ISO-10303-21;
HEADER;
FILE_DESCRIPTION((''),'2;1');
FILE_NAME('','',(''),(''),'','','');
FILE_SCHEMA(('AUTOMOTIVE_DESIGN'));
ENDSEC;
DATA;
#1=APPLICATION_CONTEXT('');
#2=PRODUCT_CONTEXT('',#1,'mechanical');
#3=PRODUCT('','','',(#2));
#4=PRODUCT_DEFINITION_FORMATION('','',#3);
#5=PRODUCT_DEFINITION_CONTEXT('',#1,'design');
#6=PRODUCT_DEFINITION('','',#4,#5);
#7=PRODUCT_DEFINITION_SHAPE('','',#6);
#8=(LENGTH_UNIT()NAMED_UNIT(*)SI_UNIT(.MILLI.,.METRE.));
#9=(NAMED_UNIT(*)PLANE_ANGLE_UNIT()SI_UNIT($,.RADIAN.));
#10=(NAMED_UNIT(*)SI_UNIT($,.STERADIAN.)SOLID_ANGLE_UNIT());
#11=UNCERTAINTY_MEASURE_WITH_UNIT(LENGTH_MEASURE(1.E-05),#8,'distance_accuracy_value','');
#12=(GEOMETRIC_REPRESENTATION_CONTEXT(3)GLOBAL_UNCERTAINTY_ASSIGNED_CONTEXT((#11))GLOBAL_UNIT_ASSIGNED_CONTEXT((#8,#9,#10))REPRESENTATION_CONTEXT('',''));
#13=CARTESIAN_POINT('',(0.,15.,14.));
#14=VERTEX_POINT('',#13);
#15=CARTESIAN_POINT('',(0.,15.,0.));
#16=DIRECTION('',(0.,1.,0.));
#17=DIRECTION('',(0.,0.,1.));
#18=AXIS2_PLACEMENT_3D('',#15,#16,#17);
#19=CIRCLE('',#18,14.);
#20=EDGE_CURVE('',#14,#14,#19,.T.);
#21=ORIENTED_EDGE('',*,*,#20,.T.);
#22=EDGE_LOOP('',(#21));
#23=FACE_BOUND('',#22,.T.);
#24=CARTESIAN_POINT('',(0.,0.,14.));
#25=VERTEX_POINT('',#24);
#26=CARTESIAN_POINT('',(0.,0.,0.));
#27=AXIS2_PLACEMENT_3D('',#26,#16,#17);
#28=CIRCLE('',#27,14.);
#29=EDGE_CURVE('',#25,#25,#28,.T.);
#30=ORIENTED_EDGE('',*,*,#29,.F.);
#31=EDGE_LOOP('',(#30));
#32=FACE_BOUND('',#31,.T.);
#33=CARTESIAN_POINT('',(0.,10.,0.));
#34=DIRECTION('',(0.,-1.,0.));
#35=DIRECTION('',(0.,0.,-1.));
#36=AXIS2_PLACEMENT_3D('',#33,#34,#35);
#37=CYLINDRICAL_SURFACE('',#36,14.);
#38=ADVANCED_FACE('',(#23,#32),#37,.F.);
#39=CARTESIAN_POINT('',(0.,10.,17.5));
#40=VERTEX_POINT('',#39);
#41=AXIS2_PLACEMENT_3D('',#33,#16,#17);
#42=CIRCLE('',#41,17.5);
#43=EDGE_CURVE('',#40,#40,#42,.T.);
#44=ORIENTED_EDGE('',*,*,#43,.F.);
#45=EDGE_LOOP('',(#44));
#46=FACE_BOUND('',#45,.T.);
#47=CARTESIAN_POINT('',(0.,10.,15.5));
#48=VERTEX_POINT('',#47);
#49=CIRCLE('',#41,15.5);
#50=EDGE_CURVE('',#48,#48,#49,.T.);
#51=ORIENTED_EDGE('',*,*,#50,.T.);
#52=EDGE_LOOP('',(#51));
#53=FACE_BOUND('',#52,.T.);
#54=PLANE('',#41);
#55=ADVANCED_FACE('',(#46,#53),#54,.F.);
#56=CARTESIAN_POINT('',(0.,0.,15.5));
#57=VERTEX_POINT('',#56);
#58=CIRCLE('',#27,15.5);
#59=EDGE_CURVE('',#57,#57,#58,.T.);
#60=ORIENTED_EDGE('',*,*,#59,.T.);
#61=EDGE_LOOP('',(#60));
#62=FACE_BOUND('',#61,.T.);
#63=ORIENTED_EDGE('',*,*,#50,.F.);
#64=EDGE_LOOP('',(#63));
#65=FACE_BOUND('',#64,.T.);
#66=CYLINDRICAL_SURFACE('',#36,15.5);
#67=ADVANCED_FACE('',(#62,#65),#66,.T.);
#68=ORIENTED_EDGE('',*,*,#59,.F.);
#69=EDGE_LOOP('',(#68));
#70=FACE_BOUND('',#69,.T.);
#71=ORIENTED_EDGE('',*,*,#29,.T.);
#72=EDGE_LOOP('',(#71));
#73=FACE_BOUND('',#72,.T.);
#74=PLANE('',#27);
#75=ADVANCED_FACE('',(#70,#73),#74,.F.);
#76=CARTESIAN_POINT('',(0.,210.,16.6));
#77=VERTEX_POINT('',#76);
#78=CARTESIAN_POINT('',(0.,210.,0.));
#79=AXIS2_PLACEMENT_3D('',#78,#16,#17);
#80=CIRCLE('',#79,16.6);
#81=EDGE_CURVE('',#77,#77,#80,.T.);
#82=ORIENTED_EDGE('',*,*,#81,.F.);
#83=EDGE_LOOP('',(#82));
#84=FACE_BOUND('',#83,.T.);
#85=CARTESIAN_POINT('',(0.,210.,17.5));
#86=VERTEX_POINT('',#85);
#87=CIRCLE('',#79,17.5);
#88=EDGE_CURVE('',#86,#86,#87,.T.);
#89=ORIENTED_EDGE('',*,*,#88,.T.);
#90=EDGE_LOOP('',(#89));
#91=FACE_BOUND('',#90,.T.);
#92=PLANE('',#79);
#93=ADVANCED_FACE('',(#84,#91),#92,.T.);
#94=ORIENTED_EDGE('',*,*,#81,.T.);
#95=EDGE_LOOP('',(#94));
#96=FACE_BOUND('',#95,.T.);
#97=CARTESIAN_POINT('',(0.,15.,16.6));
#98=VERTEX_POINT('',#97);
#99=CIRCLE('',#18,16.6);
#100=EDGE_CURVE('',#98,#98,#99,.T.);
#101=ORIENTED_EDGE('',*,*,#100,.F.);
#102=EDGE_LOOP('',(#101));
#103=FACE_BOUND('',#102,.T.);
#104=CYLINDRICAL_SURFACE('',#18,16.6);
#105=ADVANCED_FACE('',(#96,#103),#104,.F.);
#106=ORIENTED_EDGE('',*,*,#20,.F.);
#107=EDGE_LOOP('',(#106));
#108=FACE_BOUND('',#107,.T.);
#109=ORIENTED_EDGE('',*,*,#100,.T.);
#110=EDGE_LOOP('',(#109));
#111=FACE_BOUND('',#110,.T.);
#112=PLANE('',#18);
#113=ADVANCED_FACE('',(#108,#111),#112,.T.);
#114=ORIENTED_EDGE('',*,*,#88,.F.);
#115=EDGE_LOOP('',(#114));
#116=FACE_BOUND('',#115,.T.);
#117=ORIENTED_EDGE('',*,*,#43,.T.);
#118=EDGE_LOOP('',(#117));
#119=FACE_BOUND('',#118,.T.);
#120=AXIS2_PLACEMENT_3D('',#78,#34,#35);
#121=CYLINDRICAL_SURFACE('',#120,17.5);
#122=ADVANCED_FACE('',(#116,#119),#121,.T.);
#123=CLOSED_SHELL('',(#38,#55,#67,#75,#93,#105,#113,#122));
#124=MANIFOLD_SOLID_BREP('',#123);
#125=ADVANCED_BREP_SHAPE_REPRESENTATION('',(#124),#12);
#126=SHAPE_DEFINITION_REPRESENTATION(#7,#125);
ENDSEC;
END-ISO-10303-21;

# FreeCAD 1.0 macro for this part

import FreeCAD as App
import Part
import Sketcher

V = App.Vector

doc = App.newDocument("Part")
body = doc.addObject("PartDesign::Body", "Body")

# Sketch on XZ plane
sketch1 = body.newObject("Sketcher::SketchObject", "Sketch")
sketch1.AttachmentSupport = (doc.getObject("XZ_Plane"), [""])
sketch1.MapMode = "FlatFace"
sketch1.addGeometry([
    Part.Circle(V(0, 0, 0), V(0, 0, 1), 15.5),
    Part.Circle(V(0, 0, 0), V(0, 0, 1), 14),
], False)
sketch1.addConstraint([
    Sketcher.Constraint("Coincident", 0, 3, -1, 1),
    Sketcher.Constraint("Coincident", 1, 3, -1, 1),
    Sketcher.Constraint("Diameter", 0, 31.0),
    Sketcher.Constraint("Diameter", 1, 28.0),
])
pad1 = body.newObject("PartDesign::Pad", "Pad")
pad1.Profile = sketch1
pad1.Length = 10
pad1.Reversed = True

# Sketch on XZ plane
sketch2 = body.newObject("Sketcher::SketchObject", "Sketch001")
sketch2.AttachmentSupport = (doc.getObject("XZ_Plane"), [""])
sketch2.MapMode = "FlatFace"
sketch2.AttachmentOffset = App.Placement(V(0, 0, -10), App.Rotation())
sketch2.addGeometry([
    Part.Circle(V(0, 0, 0), V(0, 0, 1), 17.5),
    Part.Circle(V(0, 0, 0), V(0, 0, 1), 14),
], False)
sketch2.addConstraint([
    Sketcher.Constraint("Coincident", 0, 3, -1, 1),
    Sketcher.Constraint("Coincident", 1, 3, -1, 1),
    Sketcher.Constraint("Diameter", 0, 35.0),
    Sketcher.Constraint("Diameter", 1, 28.0),
])
pad2 = body.newObject("PartDesign::Pad", "Pad001")
pad2.Profile = sketch2
pad2.Length = 200
pad2.Reversed = True

# Sketch on XZ plane
sketch3 = body.newObject("Sketcher::SketchObject", "Sketch002")
sketch3.AttachmentSupport = (doc.getObject("XZ_Plane"), [""])
sketch3.MapMode = "FlatFace"
sketch3.AttachmentOffset = App.Placement(V(0, 0, -210), App.Rotation())
sketch3.addGeometry(Part.Circle(V(0, 0, 0), V(0, 0, 1), 16.6), False)
sketch3.addConstraint([
    Sketcher.Constraint("Coincident", 0, 3, -1, 1),
    Sketcher.Constraint("Diameter", 0, 33.2),
])
pocket1 = body.newObject("PartDesign::Pocket", "Pocket")
pocket1.Profile = sketch3
pocket1.Length = 195
pocket1.Reversed = True

doc.recompute()
